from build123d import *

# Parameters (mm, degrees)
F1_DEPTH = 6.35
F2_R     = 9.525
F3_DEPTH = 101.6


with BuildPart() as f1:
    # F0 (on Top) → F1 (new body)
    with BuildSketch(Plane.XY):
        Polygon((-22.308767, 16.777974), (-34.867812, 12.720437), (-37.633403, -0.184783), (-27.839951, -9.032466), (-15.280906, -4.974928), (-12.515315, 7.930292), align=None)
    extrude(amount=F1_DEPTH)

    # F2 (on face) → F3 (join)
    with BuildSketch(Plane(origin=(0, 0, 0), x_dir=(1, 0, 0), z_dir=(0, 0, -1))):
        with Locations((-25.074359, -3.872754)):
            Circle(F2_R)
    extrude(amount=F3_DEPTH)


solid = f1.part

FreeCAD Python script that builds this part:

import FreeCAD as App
import Part
import Sketcher
Q = App.Units.Quantity

doc = App.newDocument("Part")
body = doc.addObject("PartDesign::Body", "Body")

sketch1 = body.newObject("Sketcher::SketchObject", "Sketch")
sketch1.AttachmentSupport = (doc.getObject("XY_Plane"), [""])
sketch1.MapMode = "FlatFace"
sketch1.addGeometry([
    Part.LineSegment(App.Vector(-22, 17, 0), App.Vector(-35, 13, 0)),
    Part.LineSegment(App.Vector(-35, 13, 0), App.Vector(-38, 0, 0)),
    Part.LineSegment(App.Vector(-38, 0, 0), App.Vector(-28, -9, 0)),
    Part.LineSegment(App.Vector(-28, -9, 0), App.Vector(-15, -5, 0)),
    Part.LineSegment(App.Vector(-15, -5, 0), App.Vector(-13, 8, 0)),
    Part.LineSegment(App.Vector(-13, 8, 0), App.Vector(-22, 17, 0)),
], False)
sketch1.addConstraint([
    Sketcher.Constraint("Coincident", 0, 2, 1, 1),
    Sketcher.Constraint("Coincident", 1, 2, 2, 1),
    Sketcher.Constraint("Coincident", 2, 2, 3, 1),
    Sketcher.Constraint("Coincident", 3, 2, 4, 1),
    Sketcher.Constraint("Coincident", 4, 2, 5, 1),
    Sketcher.Constraint("Coincident", 5, 2, 0, 1),
    Sketcher.Constraint("Parallel", 0, 3),
    Sketcher.Constraint("Parallel", 1, 4),
    Sketcher.Constraint("Parallel", 2, 5),
    Sketcher.Constraint("Equal", 0, 1),
    Sketcher.Constraint("Equal", 1, 2),
    Sketcher.Constraint("Equal", 2, 3),
    Sketcher.Constraint("DistanceY", 3, 2, 5, 2, Q("21.752902 mm")),
    Sketcher.Constraint("Distance", 3, Q("13.198228 mm")),
    Sketcher.Constraint("DistanceX", 2, 2, -1, 1, Q("27.839951 mm")),
    Sketcher.Constraint("DistanceY", 3, 2, -1, 1, Q("4.974928 mm")),
    Sketcher.Constraint("DistanceY", -1, 1, 4, 2, Q("7.930292 mm")),
    Sketcher.Constraint("DistanceY", 2, 2, 4, 2, Q("16.962758 mm")),
])
pad1 = body.newObject("PartDesign::Pad", "Pad")
pad1.Profile = sketch1
pad1.Length = Q("0.25 in")

sketch2 = body.newObject("Sketcher::SketchObject", "Sketch001")
sketch2.AttachmentSupport = (doc.getObject("XY_Plane"), [""])
sketch2.MapMode = "FlatFace"
sketch2.addGeometry(Part.Circle(App.Vector(-25, 4, 0), App.Vector(0, 0, 1), 10), False)
sketch2.addConstraint([
    Sketcher.Constraint("Diameter", 0, Q("0.75 in")),
    Sketcher.Constraint("DistanceX", 0, 3, -1, 1, Q("25.074359 mm")),
    Sketcher.Constraint("DistanceY", -1, 1, 0, 3, Q("3.872754 mm")),
])
pad2 = body.newObject("PartDesign::Pad", "Pad001")
pad2.Profile = sketch2
pad2.Length = Q("4 in")
pad2.Reversed = True

doc.recompute()
